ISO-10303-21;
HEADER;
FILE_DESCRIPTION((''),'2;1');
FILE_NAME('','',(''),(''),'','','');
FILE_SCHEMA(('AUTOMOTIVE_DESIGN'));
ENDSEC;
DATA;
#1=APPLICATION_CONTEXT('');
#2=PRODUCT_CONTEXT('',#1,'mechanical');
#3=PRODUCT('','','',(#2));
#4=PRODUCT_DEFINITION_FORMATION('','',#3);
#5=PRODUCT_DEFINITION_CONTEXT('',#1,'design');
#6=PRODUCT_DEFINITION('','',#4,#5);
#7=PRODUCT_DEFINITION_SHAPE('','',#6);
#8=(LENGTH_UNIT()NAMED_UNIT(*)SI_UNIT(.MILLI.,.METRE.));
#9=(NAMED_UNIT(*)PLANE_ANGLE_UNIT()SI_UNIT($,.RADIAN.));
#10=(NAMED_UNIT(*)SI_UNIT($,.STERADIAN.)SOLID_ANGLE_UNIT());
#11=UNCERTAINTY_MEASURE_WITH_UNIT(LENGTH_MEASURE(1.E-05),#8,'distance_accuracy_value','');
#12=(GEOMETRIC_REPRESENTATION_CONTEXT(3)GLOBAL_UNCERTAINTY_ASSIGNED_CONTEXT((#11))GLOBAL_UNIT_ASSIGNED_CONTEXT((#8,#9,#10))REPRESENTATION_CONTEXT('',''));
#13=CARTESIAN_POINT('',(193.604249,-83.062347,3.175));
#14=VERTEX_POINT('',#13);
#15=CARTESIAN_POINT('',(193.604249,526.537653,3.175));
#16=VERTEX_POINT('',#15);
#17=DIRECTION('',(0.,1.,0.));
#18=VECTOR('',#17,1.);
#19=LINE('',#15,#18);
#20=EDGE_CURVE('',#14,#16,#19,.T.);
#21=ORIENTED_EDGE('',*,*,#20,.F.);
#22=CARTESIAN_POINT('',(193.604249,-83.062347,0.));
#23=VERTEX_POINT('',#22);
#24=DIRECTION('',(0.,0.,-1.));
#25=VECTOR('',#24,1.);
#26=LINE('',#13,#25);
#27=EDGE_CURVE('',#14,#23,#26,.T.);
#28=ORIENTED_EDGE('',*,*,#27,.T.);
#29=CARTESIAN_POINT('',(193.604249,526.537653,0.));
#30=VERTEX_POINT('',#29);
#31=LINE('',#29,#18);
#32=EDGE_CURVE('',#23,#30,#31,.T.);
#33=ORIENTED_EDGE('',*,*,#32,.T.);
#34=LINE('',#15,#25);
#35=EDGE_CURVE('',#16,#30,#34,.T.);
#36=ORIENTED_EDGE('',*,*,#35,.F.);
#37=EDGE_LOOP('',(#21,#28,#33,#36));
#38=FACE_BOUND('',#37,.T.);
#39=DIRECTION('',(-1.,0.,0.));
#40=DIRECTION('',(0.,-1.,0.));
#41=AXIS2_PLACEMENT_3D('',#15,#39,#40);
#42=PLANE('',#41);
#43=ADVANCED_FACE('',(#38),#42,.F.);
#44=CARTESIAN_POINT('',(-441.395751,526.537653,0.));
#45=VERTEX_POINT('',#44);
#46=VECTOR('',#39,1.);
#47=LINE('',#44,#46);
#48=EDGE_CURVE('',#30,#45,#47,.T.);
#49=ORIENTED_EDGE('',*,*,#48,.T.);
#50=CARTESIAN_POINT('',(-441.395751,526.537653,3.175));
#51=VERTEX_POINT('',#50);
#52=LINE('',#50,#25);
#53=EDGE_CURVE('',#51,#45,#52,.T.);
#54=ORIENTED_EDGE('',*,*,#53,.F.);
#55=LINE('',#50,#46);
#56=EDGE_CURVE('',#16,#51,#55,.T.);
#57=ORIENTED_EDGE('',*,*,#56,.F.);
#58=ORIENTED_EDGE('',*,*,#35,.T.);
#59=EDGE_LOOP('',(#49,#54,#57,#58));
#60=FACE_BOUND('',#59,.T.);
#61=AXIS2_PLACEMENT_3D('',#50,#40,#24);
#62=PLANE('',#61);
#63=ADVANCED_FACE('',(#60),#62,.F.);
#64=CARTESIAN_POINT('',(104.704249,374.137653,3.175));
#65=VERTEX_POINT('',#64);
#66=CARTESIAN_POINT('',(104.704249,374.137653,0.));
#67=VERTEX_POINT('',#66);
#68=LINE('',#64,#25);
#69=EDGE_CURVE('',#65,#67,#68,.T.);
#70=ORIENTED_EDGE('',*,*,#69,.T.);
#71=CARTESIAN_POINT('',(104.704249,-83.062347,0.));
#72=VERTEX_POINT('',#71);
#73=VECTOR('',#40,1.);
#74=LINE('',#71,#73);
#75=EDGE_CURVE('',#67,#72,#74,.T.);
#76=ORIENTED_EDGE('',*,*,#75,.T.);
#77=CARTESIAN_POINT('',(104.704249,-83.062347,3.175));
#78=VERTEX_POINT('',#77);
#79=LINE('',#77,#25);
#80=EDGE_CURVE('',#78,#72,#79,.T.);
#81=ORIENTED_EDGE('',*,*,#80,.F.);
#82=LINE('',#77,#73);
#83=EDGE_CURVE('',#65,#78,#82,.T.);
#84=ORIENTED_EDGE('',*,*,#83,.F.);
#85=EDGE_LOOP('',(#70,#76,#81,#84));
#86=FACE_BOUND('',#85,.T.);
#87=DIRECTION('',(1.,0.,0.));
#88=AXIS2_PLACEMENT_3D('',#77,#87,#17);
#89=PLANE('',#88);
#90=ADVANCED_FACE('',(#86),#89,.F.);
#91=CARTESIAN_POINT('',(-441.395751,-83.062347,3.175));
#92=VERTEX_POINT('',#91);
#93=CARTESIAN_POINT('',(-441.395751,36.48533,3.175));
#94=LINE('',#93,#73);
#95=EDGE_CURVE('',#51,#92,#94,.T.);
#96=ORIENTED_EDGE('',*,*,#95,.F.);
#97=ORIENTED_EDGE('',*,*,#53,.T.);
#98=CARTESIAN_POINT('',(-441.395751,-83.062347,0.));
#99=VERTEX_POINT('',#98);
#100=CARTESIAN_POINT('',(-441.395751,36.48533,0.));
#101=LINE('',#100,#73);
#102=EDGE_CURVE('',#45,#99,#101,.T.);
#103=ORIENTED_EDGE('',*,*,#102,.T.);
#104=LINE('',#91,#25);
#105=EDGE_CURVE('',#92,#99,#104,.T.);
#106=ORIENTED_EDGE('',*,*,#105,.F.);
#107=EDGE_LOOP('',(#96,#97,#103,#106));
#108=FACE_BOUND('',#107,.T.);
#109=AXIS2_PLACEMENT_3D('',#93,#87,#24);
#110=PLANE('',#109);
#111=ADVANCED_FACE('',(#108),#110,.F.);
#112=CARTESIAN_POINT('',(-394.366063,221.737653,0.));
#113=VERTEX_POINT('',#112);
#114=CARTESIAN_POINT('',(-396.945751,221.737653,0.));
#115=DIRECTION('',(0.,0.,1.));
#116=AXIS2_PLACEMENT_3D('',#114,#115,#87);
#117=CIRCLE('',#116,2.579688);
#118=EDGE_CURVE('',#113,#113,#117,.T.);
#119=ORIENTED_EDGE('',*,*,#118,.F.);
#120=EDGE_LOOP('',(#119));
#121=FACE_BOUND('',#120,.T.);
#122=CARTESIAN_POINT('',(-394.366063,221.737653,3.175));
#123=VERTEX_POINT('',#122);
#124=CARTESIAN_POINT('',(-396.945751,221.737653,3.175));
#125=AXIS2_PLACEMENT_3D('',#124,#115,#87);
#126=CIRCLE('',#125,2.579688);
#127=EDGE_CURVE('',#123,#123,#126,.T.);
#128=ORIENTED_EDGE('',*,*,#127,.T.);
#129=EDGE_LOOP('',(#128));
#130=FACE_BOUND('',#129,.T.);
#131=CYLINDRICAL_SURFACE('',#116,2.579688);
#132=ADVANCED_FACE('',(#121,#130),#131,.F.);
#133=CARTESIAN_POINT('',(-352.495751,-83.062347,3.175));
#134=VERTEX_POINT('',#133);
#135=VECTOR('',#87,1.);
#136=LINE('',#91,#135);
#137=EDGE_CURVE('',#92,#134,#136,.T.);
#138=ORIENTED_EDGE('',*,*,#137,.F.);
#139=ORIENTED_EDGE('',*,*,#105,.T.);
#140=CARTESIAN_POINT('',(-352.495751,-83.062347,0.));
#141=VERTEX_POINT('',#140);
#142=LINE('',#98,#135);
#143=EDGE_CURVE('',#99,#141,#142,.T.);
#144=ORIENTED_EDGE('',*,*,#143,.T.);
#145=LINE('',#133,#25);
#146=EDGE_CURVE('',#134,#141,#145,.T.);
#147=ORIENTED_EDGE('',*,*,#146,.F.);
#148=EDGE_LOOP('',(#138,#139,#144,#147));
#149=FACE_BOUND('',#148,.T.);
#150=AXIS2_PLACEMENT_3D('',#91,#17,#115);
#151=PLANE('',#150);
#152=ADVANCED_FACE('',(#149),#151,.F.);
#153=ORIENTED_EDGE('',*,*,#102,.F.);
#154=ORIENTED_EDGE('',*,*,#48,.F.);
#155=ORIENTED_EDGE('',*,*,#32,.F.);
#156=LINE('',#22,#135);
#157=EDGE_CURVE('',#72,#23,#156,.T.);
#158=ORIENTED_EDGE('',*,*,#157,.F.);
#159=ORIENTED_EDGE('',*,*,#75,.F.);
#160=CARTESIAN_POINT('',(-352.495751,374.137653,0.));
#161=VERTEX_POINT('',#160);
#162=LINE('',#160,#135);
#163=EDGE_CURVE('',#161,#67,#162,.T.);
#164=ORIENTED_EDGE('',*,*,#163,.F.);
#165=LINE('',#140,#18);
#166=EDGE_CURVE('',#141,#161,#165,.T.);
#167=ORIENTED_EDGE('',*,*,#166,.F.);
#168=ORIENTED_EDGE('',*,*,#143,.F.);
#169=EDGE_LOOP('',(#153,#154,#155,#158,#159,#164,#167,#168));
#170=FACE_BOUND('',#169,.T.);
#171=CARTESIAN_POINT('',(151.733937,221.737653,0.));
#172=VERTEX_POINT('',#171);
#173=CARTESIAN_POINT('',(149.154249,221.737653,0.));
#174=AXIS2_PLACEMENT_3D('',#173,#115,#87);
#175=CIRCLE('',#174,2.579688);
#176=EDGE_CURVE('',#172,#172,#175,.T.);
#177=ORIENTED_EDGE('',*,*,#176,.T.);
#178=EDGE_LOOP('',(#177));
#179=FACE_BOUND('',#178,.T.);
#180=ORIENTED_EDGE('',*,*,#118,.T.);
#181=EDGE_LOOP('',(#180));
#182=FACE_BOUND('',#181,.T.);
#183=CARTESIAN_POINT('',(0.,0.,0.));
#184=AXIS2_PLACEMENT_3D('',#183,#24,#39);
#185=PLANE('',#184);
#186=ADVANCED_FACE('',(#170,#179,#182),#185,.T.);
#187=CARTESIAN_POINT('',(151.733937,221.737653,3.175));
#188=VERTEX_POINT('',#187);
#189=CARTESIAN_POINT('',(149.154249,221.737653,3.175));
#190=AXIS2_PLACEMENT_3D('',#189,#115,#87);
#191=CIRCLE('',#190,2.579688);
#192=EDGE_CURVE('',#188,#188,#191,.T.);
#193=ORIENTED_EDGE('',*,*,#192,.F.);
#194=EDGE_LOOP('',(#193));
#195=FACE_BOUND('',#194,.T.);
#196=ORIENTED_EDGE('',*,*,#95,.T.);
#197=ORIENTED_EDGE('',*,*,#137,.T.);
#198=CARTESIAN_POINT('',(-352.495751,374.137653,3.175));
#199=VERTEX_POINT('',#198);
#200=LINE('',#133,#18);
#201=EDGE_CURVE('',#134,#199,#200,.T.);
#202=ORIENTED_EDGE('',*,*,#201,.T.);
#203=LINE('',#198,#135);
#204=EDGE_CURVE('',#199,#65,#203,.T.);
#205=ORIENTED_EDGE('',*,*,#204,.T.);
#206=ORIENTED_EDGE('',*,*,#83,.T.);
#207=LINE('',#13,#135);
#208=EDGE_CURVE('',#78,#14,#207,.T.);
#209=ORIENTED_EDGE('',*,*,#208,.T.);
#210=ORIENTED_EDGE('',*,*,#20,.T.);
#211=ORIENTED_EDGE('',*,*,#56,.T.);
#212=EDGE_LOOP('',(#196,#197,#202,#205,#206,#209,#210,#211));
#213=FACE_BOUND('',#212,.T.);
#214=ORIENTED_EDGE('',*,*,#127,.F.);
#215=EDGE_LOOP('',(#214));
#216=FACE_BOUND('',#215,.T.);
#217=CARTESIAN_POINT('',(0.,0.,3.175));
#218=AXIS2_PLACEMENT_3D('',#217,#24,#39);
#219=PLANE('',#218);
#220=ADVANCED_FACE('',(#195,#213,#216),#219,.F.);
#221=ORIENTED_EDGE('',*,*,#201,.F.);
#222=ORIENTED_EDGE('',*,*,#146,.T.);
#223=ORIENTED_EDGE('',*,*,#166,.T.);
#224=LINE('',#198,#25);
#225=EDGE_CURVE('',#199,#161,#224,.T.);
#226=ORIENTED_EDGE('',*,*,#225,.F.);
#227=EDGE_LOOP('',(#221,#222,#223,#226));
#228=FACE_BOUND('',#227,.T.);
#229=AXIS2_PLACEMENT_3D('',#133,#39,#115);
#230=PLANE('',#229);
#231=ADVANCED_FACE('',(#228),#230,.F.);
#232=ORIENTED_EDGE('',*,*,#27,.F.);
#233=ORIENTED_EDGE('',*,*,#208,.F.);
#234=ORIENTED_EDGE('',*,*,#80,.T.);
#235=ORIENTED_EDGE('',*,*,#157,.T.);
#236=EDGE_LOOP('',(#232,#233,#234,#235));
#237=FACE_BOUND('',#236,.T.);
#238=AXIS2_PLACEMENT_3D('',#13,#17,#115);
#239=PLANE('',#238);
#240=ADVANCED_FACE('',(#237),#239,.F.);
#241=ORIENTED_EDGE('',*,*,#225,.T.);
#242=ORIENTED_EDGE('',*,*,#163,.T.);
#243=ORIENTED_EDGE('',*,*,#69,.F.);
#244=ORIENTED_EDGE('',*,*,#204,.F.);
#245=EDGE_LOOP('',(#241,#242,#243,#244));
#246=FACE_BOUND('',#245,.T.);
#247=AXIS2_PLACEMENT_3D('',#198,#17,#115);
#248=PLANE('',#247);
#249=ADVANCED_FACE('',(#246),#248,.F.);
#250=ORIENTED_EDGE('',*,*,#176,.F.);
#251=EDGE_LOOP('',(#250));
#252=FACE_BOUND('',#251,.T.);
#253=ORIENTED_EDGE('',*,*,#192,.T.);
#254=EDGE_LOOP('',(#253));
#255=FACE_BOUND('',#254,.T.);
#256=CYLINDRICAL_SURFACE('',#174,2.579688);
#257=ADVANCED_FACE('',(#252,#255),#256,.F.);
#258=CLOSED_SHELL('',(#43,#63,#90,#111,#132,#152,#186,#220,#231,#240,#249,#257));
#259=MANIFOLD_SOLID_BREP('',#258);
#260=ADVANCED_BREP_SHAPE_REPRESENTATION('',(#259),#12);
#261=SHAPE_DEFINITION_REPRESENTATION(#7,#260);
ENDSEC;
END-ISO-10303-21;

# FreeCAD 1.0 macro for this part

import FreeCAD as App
import Part
import Sketcher
from FreeCAD import Vector
Q = App.Units.Quantity

doc = App.newDocument("Part")
body = doc.addObject("PartDesign::Body", "Body")

sketch1 = doc.addObject("Sketcher::SketchObject", "Sketch")
body.addObject(sketch1)
sketch1.AttachmentSupport = (doc.XY_Plane, [""])
sketch1.MapMode = "FlatFace"
sketch1.addGeometry([
    Part.LineSegment(Vector(194, 527, 0), Vector(-441, 527, 0)),
    Part.LineSegment(Vector(-441, 527, 0), Vector(-441, -83, 0)),
    Part.LineSegment(Vector(-441, -83, 0), Vector(-352, -83, 0)),
    Part.LineSegment(Vector(-352, -83, 0), Vector(-352, 374, 0)),
    Part.LineSegment(Vector(-352, 374, 0), Vector(105, 374, 0)),
    Part.LineSegment(Vector(105, 374, 0), Vector(105, -83, 0)),
    Part.LineSegment(Vector(105, -83, 0), Vector(194, -83, 0)),
    Part.LineSegment(Vector(194, -83, 0), Vector(194, 527, 0)),
], False)
sketch1.addConstraint([
    Sketcher.Constraint("Coincident", 0, 2, 1, 1),
    Sketcher.Constraint("Coincident", 1, 2, 2, 1),
    Sketcher.Constraint("Coincident", 2, 2, 3, 1),
    Sketcher.Constraint("Coincident", 3, 2, 4, 1),
    Sketcher.Constraint("Coincident", 4, 2, 5, 1),
    Sketcher.Constraint("Coincident", 5, 2, 6, 1),
    Sketcher.Constraint("Coincident", 6, 2, 7, 1),
    Sketcher.Constraint("Coincident", 7, 2, 0, 1),
    Sketcher.Constraint("Horizontal", 0),
    Sketcher.Constraint("Vertical", 1),
    Sketcher.Constraint("Horizontal", 2),
    Sketcher.Constraint("Vertical", 3),
    Sketcher.Constraint("Horizontal", 4),
    Sketcher.Constraint("Vertical", 5),
    Sketcher.Constraint("Horizontal", 6),
    Sketcher.Constraint("Vertical", 7),
    Sketcher.Constraint("Horizontal", 2, 2, 5, 2),
    Sketcher.Constraint("Equal", 2, 6),
    Sketcher.Constraint("Equal", 4, 3),
    Sketcher.Constraint("DistanceX", 0, 2, 0, 1, Q("25 in")),
    Sketcher.Constraint("DistanceX", 4, 1, 4, 2, Q("18 in")),
    Sketcher.Constraint("DistanceY", 1, 2, 1, 1, Q("24 in")),
    Sketcher.Constraint("DistanceX", 0, 2, -1, 1, Q("441.395751 mm")),
    Sketcher.Constraint("DistanceY", -1, 1, 0, 2, Q("526.537653 mm")),
])
pad1 = doc.addObject("PartDesign::Pad", "Pad")
body.addObject(pad1)
pad1.Profile = sketch1
pad1.Length = Q("0.125 in")

sketch2 = doc.addObject("Sketcher::SketchObject", "Sketch001")
body.addObject(sketch2)
sketch2.AttachmentSupport = (doc.XY_Plane, [""])
sketch2.MapMode = "FlatFace"
sketch2.AttachmentOffset = App.Placement(Vector(0, 0, 0.125 * 25.4), App.Rotation())
sketch2.addGeometry([
    Part.Circle(Vector(-396.9, 221.7, 0), Vector(0, 0, 1), 2.6),
    Part.Circle(Vector(149.2, 221.7, 0), Vector(0, 0, 1), 2.6),
], False)
sketch2.addConstraint([
    Sketcher.Constraint("Equal", 0, 1),
    Sketcher.Constraint("Horizontal", 0, 3, 1, 3),
    Sketcher.Constraint("Diameter", 0, Q("0.203125 in")),
    Sketcher.Constraint("DistanceX", 0, 3, 1, 3, Q("21.5 in")),
    Sketcher.Constraint("DistanceX", 0, 3, -1, 1, Q("396.945751 mm")),
    Sketcher.Constraint("DistanceY", -1, 1, 0, 3, Q("221.737653 mm")),
])
pocket1 = doc.addObject("PartDesign::Pocket", "Pocket")
body.addObject(pocket1)
pocket1.Profile = sketch2
pocket1.Type = "ThroughAll"

doc.recompute()
